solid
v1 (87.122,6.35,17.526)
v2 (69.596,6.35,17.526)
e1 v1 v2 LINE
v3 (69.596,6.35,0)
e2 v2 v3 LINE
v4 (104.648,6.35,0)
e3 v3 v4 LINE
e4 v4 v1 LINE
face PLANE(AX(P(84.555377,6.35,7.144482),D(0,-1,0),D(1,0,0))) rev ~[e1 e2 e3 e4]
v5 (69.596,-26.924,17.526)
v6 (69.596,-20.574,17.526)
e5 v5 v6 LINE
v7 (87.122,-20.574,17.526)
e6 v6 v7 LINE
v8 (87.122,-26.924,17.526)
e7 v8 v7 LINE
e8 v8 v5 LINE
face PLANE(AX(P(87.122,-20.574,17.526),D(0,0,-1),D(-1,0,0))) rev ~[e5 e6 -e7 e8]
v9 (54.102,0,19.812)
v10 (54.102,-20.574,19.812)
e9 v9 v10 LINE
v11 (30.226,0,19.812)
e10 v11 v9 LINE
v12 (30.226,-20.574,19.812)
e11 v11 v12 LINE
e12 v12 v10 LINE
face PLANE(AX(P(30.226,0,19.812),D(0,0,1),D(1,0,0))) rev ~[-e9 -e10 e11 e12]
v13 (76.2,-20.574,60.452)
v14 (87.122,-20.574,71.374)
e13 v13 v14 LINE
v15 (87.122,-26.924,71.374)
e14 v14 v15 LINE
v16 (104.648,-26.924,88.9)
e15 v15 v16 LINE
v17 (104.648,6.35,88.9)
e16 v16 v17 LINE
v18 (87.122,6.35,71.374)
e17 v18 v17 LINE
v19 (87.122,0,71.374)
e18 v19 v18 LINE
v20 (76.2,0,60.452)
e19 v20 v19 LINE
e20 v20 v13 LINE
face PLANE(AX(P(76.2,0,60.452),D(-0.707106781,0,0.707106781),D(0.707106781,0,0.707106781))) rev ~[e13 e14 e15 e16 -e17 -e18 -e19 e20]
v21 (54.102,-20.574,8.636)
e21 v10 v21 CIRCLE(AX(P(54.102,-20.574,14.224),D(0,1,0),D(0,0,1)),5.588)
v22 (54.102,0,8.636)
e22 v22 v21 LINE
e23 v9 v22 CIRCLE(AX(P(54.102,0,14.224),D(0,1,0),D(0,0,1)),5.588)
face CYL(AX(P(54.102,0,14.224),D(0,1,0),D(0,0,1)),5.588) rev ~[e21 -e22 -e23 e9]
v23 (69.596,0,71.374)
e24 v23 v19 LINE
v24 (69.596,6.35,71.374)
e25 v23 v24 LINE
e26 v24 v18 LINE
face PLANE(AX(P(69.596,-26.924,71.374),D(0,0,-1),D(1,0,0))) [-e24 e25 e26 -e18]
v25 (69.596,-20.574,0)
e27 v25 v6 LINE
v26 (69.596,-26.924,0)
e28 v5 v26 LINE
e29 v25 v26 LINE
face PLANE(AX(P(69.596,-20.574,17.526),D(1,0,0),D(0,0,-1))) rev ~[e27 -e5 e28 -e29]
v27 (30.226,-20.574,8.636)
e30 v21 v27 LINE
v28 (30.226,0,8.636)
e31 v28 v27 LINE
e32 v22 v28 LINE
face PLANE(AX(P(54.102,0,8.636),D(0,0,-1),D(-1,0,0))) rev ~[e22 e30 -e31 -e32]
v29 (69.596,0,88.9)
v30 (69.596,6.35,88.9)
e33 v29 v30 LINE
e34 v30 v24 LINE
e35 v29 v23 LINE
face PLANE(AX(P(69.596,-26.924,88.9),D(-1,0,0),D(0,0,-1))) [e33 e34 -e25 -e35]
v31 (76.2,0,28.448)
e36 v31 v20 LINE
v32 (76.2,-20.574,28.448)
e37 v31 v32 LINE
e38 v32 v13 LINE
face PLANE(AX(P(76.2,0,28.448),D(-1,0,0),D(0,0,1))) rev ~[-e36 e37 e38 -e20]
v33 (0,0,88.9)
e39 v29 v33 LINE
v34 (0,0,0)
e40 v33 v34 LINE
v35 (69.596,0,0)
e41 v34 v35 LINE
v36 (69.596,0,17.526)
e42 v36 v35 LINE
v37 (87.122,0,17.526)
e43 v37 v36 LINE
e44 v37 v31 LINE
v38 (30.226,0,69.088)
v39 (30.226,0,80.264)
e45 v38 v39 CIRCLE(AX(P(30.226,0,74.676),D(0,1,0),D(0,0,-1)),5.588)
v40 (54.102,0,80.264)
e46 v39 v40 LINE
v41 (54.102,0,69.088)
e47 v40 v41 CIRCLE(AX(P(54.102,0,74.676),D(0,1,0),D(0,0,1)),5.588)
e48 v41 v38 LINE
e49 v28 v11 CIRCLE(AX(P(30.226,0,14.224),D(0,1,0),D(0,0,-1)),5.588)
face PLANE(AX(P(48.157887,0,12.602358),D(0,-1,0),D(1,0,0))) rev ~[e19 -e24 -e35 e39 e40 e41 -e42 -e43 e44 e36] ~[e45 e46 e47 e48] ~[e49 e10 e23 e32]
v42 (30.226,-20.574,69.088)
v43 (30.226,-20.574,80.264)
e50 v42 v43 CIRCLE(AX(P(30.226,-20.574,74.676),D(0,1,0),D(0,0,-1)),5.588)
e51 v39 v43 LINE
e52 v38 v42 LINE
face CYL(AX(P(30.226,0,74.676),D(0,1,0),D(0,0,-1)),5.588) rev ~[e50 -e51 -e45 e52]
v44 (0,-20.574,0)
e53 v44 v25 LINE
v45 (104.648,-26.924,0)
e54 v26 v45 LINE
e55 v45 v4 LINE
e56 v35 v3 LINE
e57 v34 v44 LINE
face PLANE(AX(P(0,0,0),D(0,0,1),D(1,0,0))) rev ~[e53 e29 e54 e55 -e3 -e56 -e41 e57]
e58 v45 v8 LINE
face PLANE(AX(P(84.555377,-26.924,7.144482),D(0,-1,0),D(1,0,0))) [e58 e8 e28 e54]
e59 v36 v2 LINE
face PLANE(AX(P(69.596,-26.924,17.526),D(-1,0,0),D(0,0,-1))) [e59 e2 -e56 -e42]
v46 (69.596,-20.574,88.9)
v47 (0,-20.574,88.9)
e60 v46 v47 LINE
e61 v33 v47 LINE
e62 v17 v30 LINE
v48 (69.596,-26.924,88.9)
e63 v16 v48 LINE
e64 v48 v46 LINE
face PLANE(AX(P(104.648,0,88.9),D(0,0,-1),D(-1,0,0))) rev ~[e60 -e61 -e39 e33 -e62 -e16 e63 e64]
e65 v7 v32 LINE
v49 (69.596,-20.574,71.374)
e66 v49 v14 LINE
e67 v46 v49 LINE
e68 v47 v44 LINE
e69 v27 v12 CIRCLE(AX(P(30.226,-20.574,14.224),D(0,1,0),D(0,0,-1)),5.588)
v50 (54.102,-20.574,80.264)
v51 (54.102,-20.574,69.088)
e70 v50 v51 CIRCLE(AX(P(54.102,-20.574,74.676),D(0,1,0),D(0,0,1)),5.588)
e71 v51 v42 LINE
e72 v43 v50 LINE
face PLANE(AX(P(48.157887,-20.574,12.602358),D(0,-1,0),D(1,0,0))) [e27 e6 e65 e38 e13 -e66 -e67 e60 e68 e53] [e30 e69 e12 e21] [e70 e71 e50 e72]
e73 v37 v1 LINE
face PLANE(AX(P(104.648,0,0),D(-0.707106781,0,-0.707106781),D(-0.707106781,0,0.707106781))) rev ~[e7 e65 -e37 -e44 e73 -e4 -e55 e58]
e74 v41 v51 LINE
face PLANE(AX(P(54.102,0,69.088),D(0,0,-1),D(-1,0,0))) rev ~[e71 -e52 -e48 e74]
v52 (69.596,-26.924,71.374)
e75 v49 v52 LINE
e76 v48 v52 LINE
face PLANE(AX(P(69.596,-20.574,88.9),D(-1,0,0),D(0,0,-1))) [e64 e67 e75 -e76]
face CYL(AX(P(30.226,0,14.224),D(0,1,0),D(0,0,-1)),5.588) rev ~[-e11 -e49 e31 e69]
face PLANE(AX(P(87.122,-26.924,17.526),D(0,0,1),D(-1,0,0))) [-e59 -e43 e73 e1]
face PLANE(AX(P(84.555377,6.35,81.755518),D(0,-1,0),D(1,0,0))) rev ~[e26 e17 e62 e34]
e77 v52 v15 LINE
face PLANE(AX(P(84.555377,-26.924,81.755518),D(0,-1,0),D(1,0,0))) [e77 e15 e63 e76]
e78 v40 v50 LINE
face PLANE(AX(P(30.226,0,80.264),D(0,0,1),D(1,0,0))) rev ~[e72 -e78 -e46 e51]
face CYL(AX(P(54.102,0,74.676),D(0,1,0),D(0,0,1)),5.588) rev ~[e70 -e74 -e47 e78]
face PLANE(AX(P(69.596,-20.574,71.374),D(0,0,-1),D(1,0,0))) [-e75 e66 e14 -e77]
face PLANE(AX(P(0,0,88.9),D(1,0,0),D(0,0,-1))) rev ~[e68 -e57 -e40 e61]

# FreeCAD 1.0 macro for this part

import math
import FreeCAD as App
import Part
import Sketcher
from FreeCAD import Vector
Q = App.Units.Quantity

doc = App.newDocument("Part")
body = doc.addObject("PartDesign::Body", "Body")

sketch1 = body.newObject("Sketcher::SketchObject", "Sketch")
sketch1.AttachmentSupport = (doc.getObject("XZ_Plane"), [""])
sketch1.MapMode = "FlatFace"
sketch1.addGeometry([
    Part.LineSegment(Vector(0, 0, 0), Vector(105, 0, 0)),
    Part.LineSegment(Vector(105, 0, 0), Vector(76, 28, 0)),
    Part.LineSegment(Vector(76, 28, 0), Vector(76, 60, 0)),
    Part.LineSegment(Vector(76, 60, 0), Vector(105, 89, 0)),
    Part.LineSegment(Vector(105, 89, 0), Vector(0, 89, 0)),
    Part.LineSegment(Vector(0, 89, 0), Vector(0, 0, 0)),
    Part.LineSegment(Vector(54, 9, 0), Vector(30, 9, 0)),
    Part.ArcOfCircle(Part.Circle(Vector(30, 14, 0), Vector(0, 0, 1), 6), math.radians(90), math.radians(270)),
    Part.LineSegment(Vector(30, 20, 0), Vector(54, 20, 0)),
    Part.ArcOfCircle(Part.Circle(Vector(54, 14, 0), Vector(0, 0, 1), 6), math.radians(-90), math.radians(90)),
    Part.ArcOfCircle(Part.Circle(Vector(54, 75, 0), Vector(0, 0, 1), 6), math.radians(-90), math.radians(90)),
    Part.LineSegment(Vector(54, 69, 0), Vector(30, 69, 0)),
    Part.ArcOfCircle(Part.Circle(Vector(30, 75, 0), Vector(0, 0, 1), 6), math.radians(90), math.radians(270)),
    Part.LineSegment(Vector(30, 80, 0), Vector(54, 80, 0)),
], False)
sketch1.addConstraint([
    Sketcher.Constraint("Coincident", 0, 2, 1, 1),
    Sketcher.Constraint("Coincident", 1, 2, 2, 1),
    Sketcher.Constraint("Coincident", 2, 2, 3, 1),
    Sketcher.Constraint("Coincident", 3, 2, 4, 1),
    Sketcher.Constraint("Coincident", 4, 2, 5, 1),
    Sketcher.Constraint("Coincident", 5, 2, 0, 1),
    Sketcher.Constraint("Tangent", 6, 2, 7, 2),
    Sketcher.Constraint("Tangent", 7, 1, 8, 1),
    Sketcher.Constraint("Tangent", 8, 2, 9, 2),
    Sketcher.Constraint("Tangent", 9, 1, 6, 1),
    Sketcher.Constraint("Tangent", 10, 1, 11, 1),
    Sketcher.Constraint("Tangent", 11, 2, 12, 2),
    Sketcher.Constraint("Tangent", 12, 1, 13, 1),
    Sketcher.Constraint("Tangent", 13, 2, 10, 2),
    Sketcher.Constraint("Horizontal", 0),
    Sketcher.Constraint("Vertical", 2),
    Sketcher.Constraint("Horizontal", 4),
    Sketcher.Constraint("Vertical", 5),
    Sketcher.Constraint("Horizontal", 6),
    Sketcher.Constraint("Horizontal", 8),
    Sketcher.Constraint("Horizontal", 11),
    Sketcher.Constraint("Horizontal", 13),
    Sketcher.Constraint("Coincident", 5, 2, -1, 1),
    Sketcher.Constraint("Equal", 9, 10),
    Sketcher.Constraint("Perpendicular", 1, 3),
    Sketcher.Constraint("Vertical", 9, 3, 10, 3),
    Sketcher.Constraint("Vertical", 7, 3, 12, 3),
    Sketcher.Constraint("Vertical", 0, 2, 3, 2),
    Sketcher.Constraint("Equal", 1, 3),
    Sketcher.Constraint("Radius", 7, Q("0.22 in")),
    Sketcher.Constraint("DistanceY", 5, 2, 5, 1, Q("3.5 in")),
    Sketcher.Constraint("DistanceX", -1, 1, 1, 2, Q("3 in")),
    Sketcher.Constraint("DistanceX", 0, 1, 0, 2, Q("4.12 in")),
    Sketcher.Constraint("DistanceX", 6, 2, 6, 1, Q("0.94 in")),
    Sketcher.Constraint("DistanceY", 6, 2, 12, 3, Q("2.6 in")),
    Sketcher.Constraint("DistanceY", 1, 2, 10, 1, Q("1.6 in")),
    Sketcher.Constraint("DistanceX", -1, 1, 7, 3, Q("1.19 in")),
])
pad1 = body.newObject("PartDesign::Pad", "Pad")
pad1.Profile = sketch1
pad1.Length = Q("0.81 in")

sketch2 = body.newObject("Sketcher::SketchObject", "Sketch001")
sketch2.AttachmentSupport = (doc.getObject("XZ_Plane"), [""])
sketch2.MapMode = "FlatFace"
sketch2.addGeometry([
    Part.LineSegment(Vector(0, 0, 0), Vector(105, 0, 0)),
    Part.LineSegment(Vector(105, 0, 0), Vector(76, 28, 0)),
    Part.LineSegment(Vector(76, 28, 0), Vector(76, 60, 0)),
    Part.LineSegment(Vector(76, 60, 0), Vector(105, 89, 0)),
    Part.LineSegment(Vector(105, 89, 0), Vector(0, 89, 0)),
    Part.LineSegment(Vector(0, 89, 0), Vector(0, 0, 0)),
    Part.LineSegment(Vector(54, 9, 0), Vector(30, 9, 0)),
    Part.ArcOfCircle(Part.Circle(Vector(30, 14, 0), Vector(0, 0, 1), 6), math.radians(90), math.radians(270)),
    Part.LineSegment(Vector(30, 20, 0), Vector(54, 20, 0)),
    Part.ArcOfCircle(Part.Circle(Vector(54, 14, 0), Vector(0, 0, 1), 6), math.radians(-90), math.radians(90)),
    Part.ArcOfCircle(Part.Circle(Vector(54, 75, 0), Vector(0, 0, 1), 6), math.radians(-90), math.radians(90)),
    Part.LineSegment(Vector(54, 69, 0), Vector(30, 69, 0)),
    Part.ArcOfCircle(Part.Circle(Vector(30, 75, 0), Vector(0, 0, 1), 6), math.radians(90), math.radians(270)),
    Part.LineSegment(Vector(30, 80, 0), Vector(54, 80, 0)),
], False)
sketch2.addConstraint([
    Sketcher.Constraint("Coincident", 0, 2, 1, 1),
    Sketcher.Constraint("Coincident", 1, 2, 2, 1),
    Sketcher.Constraint("Coincident", 2, 2, 3, 1),
    Sketcher.Constraint("Coincident", 3, 2, 4, 1),
    Sketcher.Constraint("Coincident", 4, 2, 5, 1),
    Sketcher.Constraint("Coincident", 5, 2, 0, 1),
    Sketcher.Constraint("Tangent", 6, 2, 7, 2),
    Sketcher.Constraint("Tangent", 7, 1, 8, 1),
    Sketcher.Constraint("Tangent", 8, 2, 9, 2),
    Sketcher.Constraint("Tangent", 9, 1, 6, 1),
    Sketcher.Constraint("Tangent", 10, 1, 11, 1),
    Sketcher.Constraint("Tangent", 11, 2, 12, 2),
    Sketcher.Constraint("Tangent", 12, 1, 13, 1),
    Sketcher.Constraint("Tangent", 13, 2, 10, 2),
    Sketcher.Constraint("Horizontal", 0),
    Sketcher.Constraint("Vertical", 2),
    Sketcher.Constraint("Horizontal", 4),
    Sketcher.Constraint("Vertical", 5),
    Sketcher.Constraint("Horizontal", 6),
    Sketcher.Constraint("Horizontal", 8),
    Sketcher.Constraint("Horizontal", 11),
    Sketcher.Constraint("Horizontal", 13),
    Sketcher.Constraint("Coincident", 5, 2, -1, 1),
    Sketcher.Constraint("Equal", 9, 10),
    Sketcher.Constraint("Perpendicular", 1, 3),
    Sketcher.Constraint("Vertical", 9, 3, 10, 3),
    Sketcher.Constraint("Vertical", 7, 3, 12, 3),
    Sketcher.Constraint("Vertical", 0, 2, 3, 2),
    Sketcher.Constraint("Equal", 1, 3),
    Sketcher.Constraint("Radius", 7, Q("0.22 in")),
    Sketcher.Constraint("DistanceY", 5, 2, 5, 1, Q("3.5 in")),
    Sketcher.Constraint("DistanceX", -1, 1, 1, 2, Q("3 in")),
    Sketcher.Constraint("DistanceX", 0, 1, 0, 2, Q("4.12 in")),
    Sketcher.Constraint("DistanceX", 6, 2, 6, 1, Q("0.94 in")),
    Sketcher.Constraint("DistanceY", 6, 2, 12, 3, Q("2.6 in")),
    Sketcher.Constraint("DistanceY", 1, 2, 10, 1, Q("1.6 in")),
    Sketcher.Constraint("DistanceX", -1, 1, 7, 3, Q("1.19 in")),
])
pad2 = body.newObject("PartDesign::Pad", "Pad001")
pad2.Profile = sketch2
pad2.Length = Q("0.81 in")

sketch3 = body.newObject("Sketcher::SketchObject", "Sketch002")
sketch3.AttachmentSupport = (doc.getObject("XZ_Plane"), [""])
sketch3.MapMode = "FlatFace"
sketch3.AttachmentOffset = App.Placement(Vector(0, 0, 0.81 * 25.4), App.Rotation())
sketch3.addGeometry([
    Part.LineSegment(Vector(70, 18, 0), Vector(70, 0, 0)),
    Part.LineSegment(Vector(70, 0, 0), Vector(105, 0, 0)),
    Part.LineSegment(Vector(105, 0, 0), Vector(87, 18, 0)),
    Part.LineSegment(Vector(87, 18, 0), Vector(70, 18, 0)),
    Part.LineSegment(Vector(70, 89, 0), Vector(70, 71, 0)),
    Part.LineSegment(Vector(70, 71, 0), Vector(87, 71, 0)),
    Part.LineSegment(Vector(87, 71, 0), Vector(105, 89, 0)),
    Part.LineSegment(Vector(105, 89, 0), Vector(70, 89, 0)),
], False)
sketch3.addConstraint([
    Sketcher.Constraint("Coincident", 0, 2, 1, 1),
    Sketcher.Constraint("Coincident", 1, 2, 2, 1),
    Sketcher.Constraint("Coincident", 2, 2, 3, 1),
    Sketcher.Constraint("Coincident", 3, 2, 0, 1),
    Sketcher.Constraint("Coincident", 4, 2, 5, 1),
    Sketcher.Constraint("Coincident", 5, 2, 6, 1),
    Sketcher.Constraint("Coincident", 6, 2, 7, 1),
    Sketcher.Constraint("Coincident", 7, 2, 4, 1),
    Sketcher.Constraint("Vertical", 0),
    Sketcher.Constraint("Horizontal", 1),
    Sketcher.Constraint("Horizontal", 3),
    Sketcher.Constraint("Vertical", 4),
    Sketcher.Constraint("Horizontal", 5),
    Sketcher.Constraint("Horizontal", 7),
    Sketcher.Constraint("PointOnObject", 0, 2, -1),
    Sketcher.Constraint("Perpendicular", 2, 6),
    Sketcher.Constraint("Vertical", 3, 2, 4, 2),
    Sketcher.Constraint("Vertical", 2, 2, 5, 2),
    Sketcher.Constraint("Vertical", 1, 2, 6, 2),
    Sketcher.Constraint("Equal", 5, 0),
    Sketcher.Constraint("Equal", 0, 4),
    Sketcher.Constraint("DistanceX", 1, 1, 1, 2, Q("1.38 in")),
    Sketcher.Constraint("DistanceY", -1, 1, 6, 2, Q("3.5 in")),
    Sketcher.Constraint("DistanceX", -1, 1, 0, 2, Q("2.74 in")),
])
pad3 = body.newObject("PartDesign::Pad", "Pad002")
pad3.Profile = sketch3
pad3.Length = Q("0.5 in")
pad3.Midplane = True

sketch4 = body.newObject("Sketcher::SketchObject", "Sketch003")
sketch4.AttachmentSupport = (doc.getObject("XZ_Plane"), [""])
sketch4.MapMode = "FlatFace"
sketch4.AttachmentOffset = App.Placement(Vector(0, 0, 1.06 * 25.4), App.Rotation())
sketch4.addGeometry([
    Part.LineSegment(Vector(87, 18, 0), Vector(70, 18, 0)),
    Part.LineSegment(Vector(70, 18, 0), Vector(70, 0, 0)),
    Part.LineSegment(Vector(70, 0, 0), Vector(105, 0, 0)),
    Part.LineSegment(Vector(105, 0, 0), Vector(87, 18, 0)),
], False)
sketch4.addConstraint([
    Sketcher.Constraint("Coincident", 0, 2, 1, 1),
    Sketcher.Constraint("Coincident", 1, 2, 2, 1),
    Sketcher.Constraint("Coincident", 2, 2, 3, 1),
    Sketcher.Constraint("Coincident", 3, 2, 0, 1),
    Sketcher.Constraint("Horizontal", 0),
    Sketcher.Constraint("Vertical", 1),
    Sketcher.Constraint("Horizontal", 2),
    Sketcher.Constraint("PointOnObject", 1, 2, -1),
    Sketcher.Constraint("Equal", 0, 1),
    Sketcher.Constraint("Angle", 3, Q("135 deg")),
    Sketcher.Constraint("DistanceX", 0, 2, 0, 1, Q("0.69 in")),
    Sketcher.Constraint("DistanceX", -1, 1, 0, 2, Q("2.74 in")),
])
pad4 = body.newObject("PartDesign::Pad", "Pad003")
pad4.Profile = sketch4
pad4.Length = Q("1.31 in")
pad4.Reversed = True

sketch5 = body.newObject("Sketcher::SketchObject", "Sketch004")
sketch5.AttachmentSupport = (doc.getObject("XZ_Plane"), [""])
sketch5.MapMode = "FlatFace"
sketch5.AttachmentOffset = App.Placement(Vector(0, 0, 1.06 * 25.4), App.Rotation())
sketch5.addGeometry([
    Part.LineSegment(Vector(105, 89, 0), Vector(70, 89, 0)),
    Part.LineSegment(Vector(70, 89, 0), Vector(70, 71, 0)),
    Part.LineSegment(Vector(70, 71, 0), Vector(87, 71, 0)),
    Part.LineSegment(Vector(87, 71, 0), Vector(105, 89, 0)),
], False)
sketch5.addConstraint([
    Sketcher.Constraint("Coincident", 0, 2, 1, 1),
    Sketcher.Constraint("Coincident", 1, 2, 2, 1),
    Sketcher.Constraint("Coincident", 2, 2, 3, 1),
    Sketcher.Constraint("Coincident", 3, 2, 0, 1),
    Sketcher.Constraint("Horizontal", 0),
    Sketcher.Constraint("Vertical", 1),
    Sketcher.Constraint("Horizontal", 2),
    Sketcher.Constraint("Equal", 2, 1),
    Sketcher.Constraint("Angle", 3, Q("45 deg")),
    Sketcher.Constraint("DistanceX", 0, 2, 0, 1, Q("1.38 in")),
    Sketcher.Constraint("DistanceY", -1, 1, 0, 2, Q("3.5 in")),
    Sketcher.Constraint("DistanceX", -1, 1, 0, 2, Q("2.74 in")),
])
pad5 = body.newObject("PartDesign::Pad", "Pad004")
pad5.Profile = sketch5
pad5.Length = Q("1.31 in")
pad5.Reversed = True

doc.recompute()
